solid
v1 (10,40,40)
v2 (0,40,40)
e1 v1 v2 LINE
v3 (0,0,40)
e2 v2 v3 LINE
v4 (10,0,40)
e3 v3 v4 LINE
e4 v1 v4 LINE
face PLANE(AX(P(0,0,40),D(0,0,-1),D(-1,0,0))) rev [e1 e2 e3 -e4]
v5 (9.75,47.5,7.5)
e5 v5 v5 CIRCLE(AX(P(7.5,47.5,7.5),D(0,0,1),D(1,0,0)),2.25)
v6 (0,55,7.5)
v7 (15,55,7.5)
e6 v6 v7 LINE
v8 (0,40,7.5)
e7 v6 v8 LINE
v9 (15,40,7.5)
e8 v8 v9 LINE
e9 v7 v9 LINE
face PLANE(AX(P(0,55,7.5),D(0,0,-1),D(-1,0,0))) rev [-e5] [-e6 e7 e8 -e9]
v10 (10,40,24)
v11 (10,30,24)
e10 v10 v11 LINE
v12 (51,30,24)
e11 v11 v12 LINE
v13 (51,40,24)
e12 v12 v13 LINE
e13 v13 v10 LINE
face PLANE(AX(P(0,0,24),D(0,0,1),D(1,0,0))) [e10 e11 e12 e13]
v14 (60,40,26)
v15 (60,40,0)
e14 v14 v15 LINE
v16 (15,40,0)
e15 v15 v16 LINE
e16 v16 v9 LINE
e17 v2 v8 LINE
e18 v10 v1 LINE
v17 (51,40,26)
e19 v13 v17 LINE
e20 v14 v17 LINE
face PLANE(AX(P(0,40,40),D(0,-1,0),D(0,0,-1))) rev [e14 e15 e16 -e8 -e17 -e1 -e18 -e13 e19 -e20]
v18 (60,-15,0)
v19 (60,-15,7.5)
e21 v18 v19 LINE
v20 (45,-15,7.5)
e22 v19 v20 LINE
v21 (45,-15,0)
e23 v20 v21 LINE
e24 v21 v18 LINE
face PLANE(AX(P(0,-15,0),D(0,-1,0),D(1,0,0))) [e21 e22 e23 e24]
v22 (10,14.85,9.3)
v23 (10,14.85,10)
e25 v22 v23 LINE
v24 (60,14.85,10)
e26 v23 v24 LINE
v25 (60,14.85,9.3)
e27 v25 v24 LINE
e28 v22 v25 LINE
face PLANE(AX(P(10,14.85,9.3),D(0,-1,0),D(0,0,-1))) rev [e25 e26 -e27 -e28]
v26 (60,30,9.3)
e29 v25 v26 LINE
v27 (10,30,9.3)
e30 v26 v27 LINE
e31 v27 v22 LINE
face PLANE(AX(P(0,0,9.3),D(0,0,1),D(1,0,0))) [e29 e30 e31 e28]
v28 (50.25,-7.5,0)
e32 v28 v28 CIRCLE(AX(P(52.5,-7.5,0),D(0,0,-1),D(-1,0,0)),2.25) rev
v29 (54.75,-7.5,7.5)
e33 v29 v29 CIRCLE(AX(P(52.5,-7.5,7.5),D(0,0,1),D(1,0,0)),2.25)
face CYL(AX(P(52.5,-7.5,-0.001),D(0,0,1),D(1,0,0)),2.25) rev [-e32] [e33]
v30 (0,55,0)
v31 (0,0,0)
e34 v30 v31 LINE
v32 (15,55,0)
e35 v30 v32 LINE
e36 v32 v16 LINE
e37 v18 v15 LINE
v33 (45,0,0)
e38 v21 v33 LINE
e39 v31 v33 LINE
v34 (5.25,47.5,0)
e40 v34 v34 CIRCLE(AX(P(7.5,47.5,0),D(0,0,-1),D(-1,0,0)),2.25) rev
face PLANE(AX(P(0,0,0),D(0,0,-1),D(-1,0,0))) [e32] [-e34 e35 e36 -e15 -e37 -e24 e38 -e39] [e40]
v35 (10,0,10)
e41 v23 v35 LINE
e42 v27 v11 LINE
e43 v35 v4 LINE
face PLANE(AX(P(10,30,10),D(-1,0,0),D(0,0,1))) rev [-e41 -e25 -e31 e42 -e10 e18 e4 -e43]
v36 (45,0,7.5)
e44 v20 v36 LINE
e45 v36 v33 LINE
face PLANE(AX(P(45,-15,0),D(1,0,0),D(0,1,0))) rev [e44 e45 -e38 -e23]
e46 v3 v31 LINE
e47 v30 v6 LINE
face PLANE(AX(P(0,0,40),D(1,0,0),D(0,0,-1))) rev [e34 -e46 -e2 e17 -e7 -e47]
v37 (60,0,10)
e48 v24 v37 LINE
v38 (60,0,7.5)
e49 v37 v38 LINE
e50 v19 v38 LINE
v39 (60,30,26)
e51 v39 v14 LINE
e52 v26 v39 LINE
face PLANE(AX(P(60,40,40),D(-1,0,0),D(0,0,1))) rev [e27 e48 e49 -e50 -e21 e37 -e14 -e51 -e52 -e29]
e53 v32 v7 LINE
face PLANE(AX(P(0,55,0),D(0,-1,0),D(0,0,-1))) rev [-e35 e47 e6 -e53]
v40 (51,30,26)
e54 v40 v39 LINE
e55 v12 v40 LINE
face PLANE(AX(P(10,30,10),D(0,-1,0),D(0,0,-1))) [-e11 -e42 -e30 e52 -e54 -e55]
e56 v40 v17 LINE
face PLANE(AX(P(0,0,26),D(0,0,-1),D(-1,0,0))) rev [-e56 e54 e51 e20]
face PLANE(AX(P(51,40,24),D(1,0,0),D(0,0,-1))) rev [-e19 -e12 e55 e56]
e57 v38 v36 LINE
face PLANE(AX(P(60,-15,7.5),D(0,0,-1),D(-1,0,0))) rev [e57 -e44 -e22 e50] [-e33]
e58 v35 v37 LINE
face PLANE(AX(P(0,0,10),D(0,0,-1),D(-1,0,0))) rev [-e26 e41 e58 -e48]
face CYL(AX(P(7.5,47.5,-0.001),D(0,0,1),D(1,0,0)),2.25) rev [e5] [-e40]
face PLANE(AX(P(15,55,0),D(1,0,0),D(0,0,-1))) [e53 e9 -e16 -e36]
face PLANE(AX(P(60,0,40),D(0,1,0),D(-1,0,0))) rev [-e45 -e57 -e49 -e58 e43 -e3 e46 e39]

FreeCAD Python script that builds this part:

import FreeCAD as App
import Part
import Sketcher
Q = App.Units.Quantity


def add_polygon(sketch, points):
    """Adds a closed chain of lines whose ends are joined by coincident constraints."""
    first, n = sketch.GeometryCount, len(points)
    for a, b in zip(points, points[1:] + points[:1]):
        sketch.addGeometry(Part.LineSegment(App.Vector(*a, 0), App.Vector(*b, 0)), False)
    for i in range(n):
        sketch.addConstraint(Sketcher.Constraint("Coincident", first + i, 2, first + (i + 1) % n, 1))

doc = App.newDocument("Part")
params = doc.addObject("Spreadsheet::Sheet", "Params")
for row, (alias, value) in enumerate([
    ("sketch1_width", "60 mm"),
    ("sketch1_height", "40 mm"),
    ("pad1_length", "40 mm"),
    ("sketch2_width", "50 mm"),
    ("sketch2_height", "30 mm"),
    ("pocket1_length", "30 mm"),
    ("sketch3_width", "50 mm"),
    ("sketch3_height", "15.15 mm"),
    ("pocket2_length", "0.7 mm"),
    ("sketch4_width", "50 mm"),
    ("sketch4_height", "10 mm"),
    ("pocket3_length", "14 mm"),
    ("sketch5_width", "41 mm"),
    ("sketch5_height", "10 mm"),
    ("pocket4_length", "2 mm"),
    ("sketch6_width", "15 mm"),
    ("sketch6_height", "7.5 mm"),
    ("pad2_length", "15 mm"),
    ("sketch7_width", "15 mm"),
    ("sketch7_height", "7.5 mm"),
    ("pad3_length", "15 mm"),
    ("sketch8_diameter", "4.5 mm"),
    ("sketch9_diameter", "4.5 mm"),
], start=1):
    params.set(f"A{row}", alias)
    params.set(f"B{row}", "=" + value)
    params.setAlias(f"B{row}", alias)

body = doc.addObject("PartDesign::Body", "Body")

# Sketch on XY plane
sketch1 = doc.addObject("Sketcher::SketchObject", "Sketch")
body.addObject(sketch1)
sketch1.AttachmentSupport = (doc.XY_Plane, [""])
sketch1.MapMode = "FlatFace"
add_polygon(sketch1, [(0, 40), (0, 0), (60, 0), (60, 40)])  # lines 0-3
sketch1.addConstraint(Sketcher.Constraint("Vertical", 0))
sketch1.addConstraint(Sketcher.Constraint("Horizontal", 1))
sketch1.addConstraint(Sketcher.Constraint("Vertical", 2))
sketch1.addConstraint(Sketcher.Constraint("Horizontal", 3))
sketch1.addConstraint(Sketcher.Constraint("Coincident", 0, 2, -1, 1))
sketch1.addConstraint(Sketcher.Constraint("DistanceX", 1, 1, 1, 2, Q("60 mm")))
sketch1.addConstraint(Sketcher.Constraint("DistanceY", 0, 2, 0, 1, Q("40 mm")))
sketch1.setExpression("Constraints[9]", "Params.sketch1_width")
sketch1.setExpression("Constraints[10]", "Params.sketch1_height")
pad1 = doc.addObject("PartDesign::Pad", "Pad")
body.addObject(pad1)
pad1.Profile = sketch1
pad1.setExpression("Length", "Params.pad1_length")

# Sketch on XY plane
sketch2 = doc.addObject("Sketcher::SketchObject", "Sketch001")
body.addObject(sketch2)
sketch2.AttachmentSupport = (doc.XY_Plane, [""])
sketch2.MapMode = "FlatFace"
sketch2.AttachmentOffset = App.Placement(App.Vector(0, 0, 40), App.Rotation())
add_polygon(sketch2, [(10, 30), (10, 0), (60, 0), (60, 30)])  # lines 0-3
sketch2.addConstraint(Sketcher.Constraint("Vertical", 0))
sketch2.addConstraint(Sketcher.Constraint("Horizontal", 1))
sketch2.addConstraint(Sketcher.Constraint("Vertical", 2))
sketch2.addConstraint(Sketcher.Constraint("Horizontal", 3))
sketch2.addConstraint(Sketcher.Constraint("PointOnObject", 0, 2, -1))
sketch2.addConstraint(Sketcher.Constraint("DistanceX", 1, 1, 1, 2, Q("50 mm")))
sketch2.addConstraint(Sketcher.Constraint("DistanceY", 0, 2, 0, 1, Q("30 mm")))
sketch2.addConstraint(Sketcher.Constraint("DistanceX", -1, 1, 0, 2, Q("10 mm")))
sketch2.setExpression("Constraints[9]", "Params.sketch2_width")
sketch2.setExpression("Constraints[10]", "Params.sketch2_height")
pocket1 = doc.addObject("PartDesign::Pocket", "Pocket")
body.addObject(pocket1)
pocket1.Profile = sketch2
pocket1.setExpression("Length", "Params.pocket1_length")

# Sketch on XY plane
sketch3 = doc.addObject("Sketcher::SketchObject", "Sketch002")
body.addObject(sketch3)
sketch3.AttachmentSupport = (doc.XY_Plane, [""])
sketch3.MapMode = "FlatFace"
sketch3.AttachmentOffset = App.Placement(App.Vector(0, 0, 10), App.Rotation())
add_polygon(sketch3, [(10, 30), (10, 15), (60, 15), (60, 30)])  # lines 0-3
sketch3.addConstraint(Sketcher.Constraint("Vertical", 0))
sketch3.addConstraint(Sketcher.Constraint("Horizontal", 1))
sketch3.addConstraint(Sketcher.Constraint("Vertical", 2))
sketch3.addConstraint(Sketcher.Constraint("Horizontal", 3))
sketch3.addConstraint(Sketcher.Constraint("DistanceX", 1, 1, 1, 2, Q("50 mm")))
sketch3.addConstraint(Sketcher.Constraint("DistanceX", -1, 1, 0, 2, Q("10 mm")))
sketch3.addConstraint(Sketcher.Constraint("DistanceY", -1, 1, 2, 2, Q("30 mm")))
sketch3.addConstraint(Sketcher.Constraint("DistanceY", 0, 2, 0, 1, Q("15.15 mm")))
sketch3.setExpression("Constraints[8]", "Params.sketch3_width")
sketch3.setExpression("Constraints[11]", "Params.sketch3_height")
pocket2 = doc.addObject("PartDesign::Pocket", "Pocket001")
body.addObject(pocket2)
pocket2.Profile = sketch3
pocket2.setExpression("Length", "Params.pocket2_length")

# Sketch on XY plane
sketch4 = doc.addObject("Sketcher::SketchObject", "Sketch003")
body.addObject(sketch4)
sketch4.AttachmentSupport = (doc.XY_Plane, [""])
sketch4.MapMode = "FlatFace"
sketch4.AttachmentOffset = App.Placement(App.Vector(0, 0, 40), App.Rotation())
add_polygon(sketch4, [(10, 40), (10, 30), (60, 30), (60, 40)])  # lines 0-3
sketch4.addConstraint(Sketcher.Constraint("Vertical", 0))
sketch4.addConstraint(Sketcher.Constraint("Horizontal", 1))
sketch4.addConstraint(Sketcher.Constraint("Vertical", 2))
sketch4.addConstraint(Sketcher.Constraint("Horizontal", 3))
sketch4.addConstraint(Sketcher.Constraint("DistanceX", 1, 1, 1, 2, Q("50 mm")))
sketch4.addConstraint(Sketcher.Constraint("DistanceY", 0, 2, 0, 1, Q("10 mm")))
sketch4.addConstraint(Sketcher.Constraint("DistanceX", -1, 1, 0, 2, Q("10 mm")))
sketch4.addConstraint(Sketcher.Constraint("DistanceY", -1, 1, 0, 2, Q("30 mm")))
sketch4.setExpression("Constraints[8]", "Params.sketch4_width")
sketch4.setExpression("Constraints[9]", "Params.sketch4_height")
pocket3 = doc.addObject("PartDesign::Pocket", "Pocket002")
body.addObject(pocket3)
pocket3.Profile = sketch4
pocket3.setExpression("Length", "Params.pocket3_length")

# Sketch on XY plane
sketch5 = doc.addObject("Sketcher::SketchObject", "Sketch004")
body.addObject(sketch5)
sketch5.AttachmentSupport = (doc.XY_Plane, [""])
sketch5.MapMode = "FlatFace"
sketch5.AttachmentOffset = App.Placement(App.Vector(0, 0, 26), App.Rotation())
add_polygon(sketch5, [(10, 40), (10, 30), (51, 30), (51, 40)])  # lines 0-3
sketch5.addConstraint(Sketcher.Constraint("Vertical", 0))
sketch5.addConstraint(Sketcher.Constraint("Horizontal", 1))
sketch5.addConstraint(Sketcher.Constraint("Vertical", 2))
sketch5.addConstraint(Sketcher.Constraint("Horizontal", 3))
sketch5.addConstraint(Sketcher.Constraint("DistanceX", 1, 1, 1, 2, Q("41 mm")))
sketch5.addConstraint(Sketcher.Constraint("DistanceY", 0, 2, 0, 1, Q("10 mm")))
sketch5.addConstraint(Sketcher.Constraint("DistanceX", -1, 1, 0, 2, Q("10 mm")))
sketch5.addConstraint(Sketcher.Constraint("DistanceY", -1, 1, 0, 2, Q("30 mm")))
sketch5.setExpression("Constraints[8]", "Params.sketch5_width")
sketch5.setExpression("Constraints[9]", "Params.sketch5_height")
pocket4 = doc.addObject("PartDesign::Pocket", "Pocket003")
body.addObject(pocket4)
pocket4.Profile = sketch5
pocket4.setExpression("Length", "Params.pocket4_length")

# Sketch on XZ plane
sketch6 = doc.addObject("Sketcher::SketchObject", "Sketch005")
body.addObject(sketch6)
sketch6.AttachmentSupport = (doc.XZ_Plane, [""])
sketch6.MapMode = "FlatFace"
add_polygon(sketch6, [(45, 8), (45, 0), (60, 0), (60, 8)])  # lines 0-3
sketch6.addConstraint(Sketcher.Constraint("Vertical", 0))
sketch6.addConstraint(Sketcher.Constraint("Horizontal", 1))
sketch6.addConstraint(Sketcher.Constraint("Vertical", 2))
sketch6.addConstraint(Sketcher.Constraint("Horizontal", 3))
sketch6.addConstraint(Sketcher.Constraint("PointOnObject", 0, 2, -1))
sketch6.addConstraint(Sketcher.Constraint("DistanceX", 1, 1, 1, 2, Q("15 mm")))
sketch6.addConstraint(Sketcher.Constraint("DistanceY", 0, 2, 0, 1, Q("7.5 mm")))
sketch6.addConstraint(Sketcher.Constraint("DistanceX", -1, 1, 0, 2, Q("45 mm")))
sketch6.setExpression("Constraints[9]", "Params.sketch6_width")
sketch6.setExpression("Constraints[10]", "Params.sketch6_height")
pad2 = doc.addObject("PartDesign::Pad", "Pad001")
body.addObject(pad2)
pad2.Profile = sketch6
pad2.setExpression("Length", "Params.pad2_length")

# Sketch on XZ plane
sketch7 = doc.addObject("Sketcher::SketchObject", "Sketch006")
body.addObject(sketch7)
sketch7.AttachmentSupport = (doc.XZ_Plane, [""])
sketch7.MapMode = "FlatFace"
sketch7.AttachmentOffset = App.Placement(App.Vector(0, 0, -40), App.Rotation())
add_polygon(sketch7, [(0, 0), (0, 8), (15, 8), (15, 0)])  # lines 0-3
sketch7.addConstraint(Sketcher.Constraint("Vertical", 0))
sketch7.addConstraint(Sketcher.Constraint("Horizontal", 1))
sketch7.addConstraint(Sketcher.Constraint("Vertical", 2))
sketch7.addConstraint(Sketcher.Constraint("Horizontal", 3))
sketch7.addConstraint(Sketcher.Constraint("Coincident", 3, 2, -1, 1))
sketch7.addConstraint(Sketcher.Constraint("DistanceX", 1, 1, 1, 2, Q("15 mm")))
sketch7.addConstraint(Sketcher.Constraint("DistanceY", 0, 1, 0, 2, Q("7.5 mm")))
sketch7.setExpression("Constraints[9]", "Params.sketch7_width")
sketch7.setExpression("Constraints[10]", "Params.sketch7_height")
pad3 = doc.addObject("PartDesign::Pad", "Pad002")
body.addObject(pad3)
pad3.Profile = sketch7
pad3.setExpression("Length", "Params.pad3_length")
pad3.Reversed = True

# Sketch on XY plane
sketch8 = doc.addObject("Sketcher::SketchObject", "Sketch007")
body.addObject(sketch8)
sketch8.AttachmentSupport = (doc.XY_Plane, [""])
sketch8.MapMode = "FlatFace"
sketch8.AttachmentOffset = App.Placement(App.Vector(0, 0, 7.5), App.Rotation())
sketch8.addGeometry(Part.Circle(App.Vector(52.5, -7.5, 0), App.Vector(0, 0, 1), 2.2), False)
sketch8.addConstraint(Sketcher.Constraint("Diameter", 0, Q("4.5 mm")))
sketch8.addConstraint(Sketcher.Constraint("DistanceX", -1, 1, 0, 3, Q("52.5 mm")))
sketch8.addConstraint(Sketcher.Constraint("DistanceY", 0, 3, -1, 1, Q("7.5 mm")))
sketch8.setExpression("Constraints[0]", "Params.sketch8_diameter")
pocket5 = doc.addObject("PartDesign::Pocket", "Pocket004")
body.addObject(pocket5)
pocket5.Profile = sketch8
pocket5.Type = "UpToFirst"

# Sketch on XY plane
sketch9 = doc.addObject("Sketcher::SketchObject", "Sketch008")
body.addObject(sketch9)
sketch9.AttachmentSupport = (doc.XY_Plane, [""])
sketch9.MapMode = "FlatFace"
sketch9.AttachmentOffset = App.Placement(App.Vector(0, 0, 7.5), App.Rotation())
sketch9.addGeometry(Part.Circle(App.Vector(7.5, 47.5, 0), App.Vector(0, 0, 1), 2.2), False)
sketch9.addConstraint(Sketcher.Constraint("Diameter", 0, Q("4.5 mm")))
sketch9.addConstraint(Sketcher.Constraint("DistanceX", -1, 1, 0, 3, Q("7.5 mm")))
sketch9.addConstraint(Sketcher.Constraint("DistanceY", -1, 1, 0, 3, Q("47.5 mm")))
sketch9.setExpression("Constraints[0]", "Params.sketch9_diameter")
pocket6 = doc.addObject("PartDesign::Pocket", "Pocket005")
body.addObject(pocket6)
pocket6.Profile = sketch9
pocket6.Type = "UpToFirst"

doc.recompute()
